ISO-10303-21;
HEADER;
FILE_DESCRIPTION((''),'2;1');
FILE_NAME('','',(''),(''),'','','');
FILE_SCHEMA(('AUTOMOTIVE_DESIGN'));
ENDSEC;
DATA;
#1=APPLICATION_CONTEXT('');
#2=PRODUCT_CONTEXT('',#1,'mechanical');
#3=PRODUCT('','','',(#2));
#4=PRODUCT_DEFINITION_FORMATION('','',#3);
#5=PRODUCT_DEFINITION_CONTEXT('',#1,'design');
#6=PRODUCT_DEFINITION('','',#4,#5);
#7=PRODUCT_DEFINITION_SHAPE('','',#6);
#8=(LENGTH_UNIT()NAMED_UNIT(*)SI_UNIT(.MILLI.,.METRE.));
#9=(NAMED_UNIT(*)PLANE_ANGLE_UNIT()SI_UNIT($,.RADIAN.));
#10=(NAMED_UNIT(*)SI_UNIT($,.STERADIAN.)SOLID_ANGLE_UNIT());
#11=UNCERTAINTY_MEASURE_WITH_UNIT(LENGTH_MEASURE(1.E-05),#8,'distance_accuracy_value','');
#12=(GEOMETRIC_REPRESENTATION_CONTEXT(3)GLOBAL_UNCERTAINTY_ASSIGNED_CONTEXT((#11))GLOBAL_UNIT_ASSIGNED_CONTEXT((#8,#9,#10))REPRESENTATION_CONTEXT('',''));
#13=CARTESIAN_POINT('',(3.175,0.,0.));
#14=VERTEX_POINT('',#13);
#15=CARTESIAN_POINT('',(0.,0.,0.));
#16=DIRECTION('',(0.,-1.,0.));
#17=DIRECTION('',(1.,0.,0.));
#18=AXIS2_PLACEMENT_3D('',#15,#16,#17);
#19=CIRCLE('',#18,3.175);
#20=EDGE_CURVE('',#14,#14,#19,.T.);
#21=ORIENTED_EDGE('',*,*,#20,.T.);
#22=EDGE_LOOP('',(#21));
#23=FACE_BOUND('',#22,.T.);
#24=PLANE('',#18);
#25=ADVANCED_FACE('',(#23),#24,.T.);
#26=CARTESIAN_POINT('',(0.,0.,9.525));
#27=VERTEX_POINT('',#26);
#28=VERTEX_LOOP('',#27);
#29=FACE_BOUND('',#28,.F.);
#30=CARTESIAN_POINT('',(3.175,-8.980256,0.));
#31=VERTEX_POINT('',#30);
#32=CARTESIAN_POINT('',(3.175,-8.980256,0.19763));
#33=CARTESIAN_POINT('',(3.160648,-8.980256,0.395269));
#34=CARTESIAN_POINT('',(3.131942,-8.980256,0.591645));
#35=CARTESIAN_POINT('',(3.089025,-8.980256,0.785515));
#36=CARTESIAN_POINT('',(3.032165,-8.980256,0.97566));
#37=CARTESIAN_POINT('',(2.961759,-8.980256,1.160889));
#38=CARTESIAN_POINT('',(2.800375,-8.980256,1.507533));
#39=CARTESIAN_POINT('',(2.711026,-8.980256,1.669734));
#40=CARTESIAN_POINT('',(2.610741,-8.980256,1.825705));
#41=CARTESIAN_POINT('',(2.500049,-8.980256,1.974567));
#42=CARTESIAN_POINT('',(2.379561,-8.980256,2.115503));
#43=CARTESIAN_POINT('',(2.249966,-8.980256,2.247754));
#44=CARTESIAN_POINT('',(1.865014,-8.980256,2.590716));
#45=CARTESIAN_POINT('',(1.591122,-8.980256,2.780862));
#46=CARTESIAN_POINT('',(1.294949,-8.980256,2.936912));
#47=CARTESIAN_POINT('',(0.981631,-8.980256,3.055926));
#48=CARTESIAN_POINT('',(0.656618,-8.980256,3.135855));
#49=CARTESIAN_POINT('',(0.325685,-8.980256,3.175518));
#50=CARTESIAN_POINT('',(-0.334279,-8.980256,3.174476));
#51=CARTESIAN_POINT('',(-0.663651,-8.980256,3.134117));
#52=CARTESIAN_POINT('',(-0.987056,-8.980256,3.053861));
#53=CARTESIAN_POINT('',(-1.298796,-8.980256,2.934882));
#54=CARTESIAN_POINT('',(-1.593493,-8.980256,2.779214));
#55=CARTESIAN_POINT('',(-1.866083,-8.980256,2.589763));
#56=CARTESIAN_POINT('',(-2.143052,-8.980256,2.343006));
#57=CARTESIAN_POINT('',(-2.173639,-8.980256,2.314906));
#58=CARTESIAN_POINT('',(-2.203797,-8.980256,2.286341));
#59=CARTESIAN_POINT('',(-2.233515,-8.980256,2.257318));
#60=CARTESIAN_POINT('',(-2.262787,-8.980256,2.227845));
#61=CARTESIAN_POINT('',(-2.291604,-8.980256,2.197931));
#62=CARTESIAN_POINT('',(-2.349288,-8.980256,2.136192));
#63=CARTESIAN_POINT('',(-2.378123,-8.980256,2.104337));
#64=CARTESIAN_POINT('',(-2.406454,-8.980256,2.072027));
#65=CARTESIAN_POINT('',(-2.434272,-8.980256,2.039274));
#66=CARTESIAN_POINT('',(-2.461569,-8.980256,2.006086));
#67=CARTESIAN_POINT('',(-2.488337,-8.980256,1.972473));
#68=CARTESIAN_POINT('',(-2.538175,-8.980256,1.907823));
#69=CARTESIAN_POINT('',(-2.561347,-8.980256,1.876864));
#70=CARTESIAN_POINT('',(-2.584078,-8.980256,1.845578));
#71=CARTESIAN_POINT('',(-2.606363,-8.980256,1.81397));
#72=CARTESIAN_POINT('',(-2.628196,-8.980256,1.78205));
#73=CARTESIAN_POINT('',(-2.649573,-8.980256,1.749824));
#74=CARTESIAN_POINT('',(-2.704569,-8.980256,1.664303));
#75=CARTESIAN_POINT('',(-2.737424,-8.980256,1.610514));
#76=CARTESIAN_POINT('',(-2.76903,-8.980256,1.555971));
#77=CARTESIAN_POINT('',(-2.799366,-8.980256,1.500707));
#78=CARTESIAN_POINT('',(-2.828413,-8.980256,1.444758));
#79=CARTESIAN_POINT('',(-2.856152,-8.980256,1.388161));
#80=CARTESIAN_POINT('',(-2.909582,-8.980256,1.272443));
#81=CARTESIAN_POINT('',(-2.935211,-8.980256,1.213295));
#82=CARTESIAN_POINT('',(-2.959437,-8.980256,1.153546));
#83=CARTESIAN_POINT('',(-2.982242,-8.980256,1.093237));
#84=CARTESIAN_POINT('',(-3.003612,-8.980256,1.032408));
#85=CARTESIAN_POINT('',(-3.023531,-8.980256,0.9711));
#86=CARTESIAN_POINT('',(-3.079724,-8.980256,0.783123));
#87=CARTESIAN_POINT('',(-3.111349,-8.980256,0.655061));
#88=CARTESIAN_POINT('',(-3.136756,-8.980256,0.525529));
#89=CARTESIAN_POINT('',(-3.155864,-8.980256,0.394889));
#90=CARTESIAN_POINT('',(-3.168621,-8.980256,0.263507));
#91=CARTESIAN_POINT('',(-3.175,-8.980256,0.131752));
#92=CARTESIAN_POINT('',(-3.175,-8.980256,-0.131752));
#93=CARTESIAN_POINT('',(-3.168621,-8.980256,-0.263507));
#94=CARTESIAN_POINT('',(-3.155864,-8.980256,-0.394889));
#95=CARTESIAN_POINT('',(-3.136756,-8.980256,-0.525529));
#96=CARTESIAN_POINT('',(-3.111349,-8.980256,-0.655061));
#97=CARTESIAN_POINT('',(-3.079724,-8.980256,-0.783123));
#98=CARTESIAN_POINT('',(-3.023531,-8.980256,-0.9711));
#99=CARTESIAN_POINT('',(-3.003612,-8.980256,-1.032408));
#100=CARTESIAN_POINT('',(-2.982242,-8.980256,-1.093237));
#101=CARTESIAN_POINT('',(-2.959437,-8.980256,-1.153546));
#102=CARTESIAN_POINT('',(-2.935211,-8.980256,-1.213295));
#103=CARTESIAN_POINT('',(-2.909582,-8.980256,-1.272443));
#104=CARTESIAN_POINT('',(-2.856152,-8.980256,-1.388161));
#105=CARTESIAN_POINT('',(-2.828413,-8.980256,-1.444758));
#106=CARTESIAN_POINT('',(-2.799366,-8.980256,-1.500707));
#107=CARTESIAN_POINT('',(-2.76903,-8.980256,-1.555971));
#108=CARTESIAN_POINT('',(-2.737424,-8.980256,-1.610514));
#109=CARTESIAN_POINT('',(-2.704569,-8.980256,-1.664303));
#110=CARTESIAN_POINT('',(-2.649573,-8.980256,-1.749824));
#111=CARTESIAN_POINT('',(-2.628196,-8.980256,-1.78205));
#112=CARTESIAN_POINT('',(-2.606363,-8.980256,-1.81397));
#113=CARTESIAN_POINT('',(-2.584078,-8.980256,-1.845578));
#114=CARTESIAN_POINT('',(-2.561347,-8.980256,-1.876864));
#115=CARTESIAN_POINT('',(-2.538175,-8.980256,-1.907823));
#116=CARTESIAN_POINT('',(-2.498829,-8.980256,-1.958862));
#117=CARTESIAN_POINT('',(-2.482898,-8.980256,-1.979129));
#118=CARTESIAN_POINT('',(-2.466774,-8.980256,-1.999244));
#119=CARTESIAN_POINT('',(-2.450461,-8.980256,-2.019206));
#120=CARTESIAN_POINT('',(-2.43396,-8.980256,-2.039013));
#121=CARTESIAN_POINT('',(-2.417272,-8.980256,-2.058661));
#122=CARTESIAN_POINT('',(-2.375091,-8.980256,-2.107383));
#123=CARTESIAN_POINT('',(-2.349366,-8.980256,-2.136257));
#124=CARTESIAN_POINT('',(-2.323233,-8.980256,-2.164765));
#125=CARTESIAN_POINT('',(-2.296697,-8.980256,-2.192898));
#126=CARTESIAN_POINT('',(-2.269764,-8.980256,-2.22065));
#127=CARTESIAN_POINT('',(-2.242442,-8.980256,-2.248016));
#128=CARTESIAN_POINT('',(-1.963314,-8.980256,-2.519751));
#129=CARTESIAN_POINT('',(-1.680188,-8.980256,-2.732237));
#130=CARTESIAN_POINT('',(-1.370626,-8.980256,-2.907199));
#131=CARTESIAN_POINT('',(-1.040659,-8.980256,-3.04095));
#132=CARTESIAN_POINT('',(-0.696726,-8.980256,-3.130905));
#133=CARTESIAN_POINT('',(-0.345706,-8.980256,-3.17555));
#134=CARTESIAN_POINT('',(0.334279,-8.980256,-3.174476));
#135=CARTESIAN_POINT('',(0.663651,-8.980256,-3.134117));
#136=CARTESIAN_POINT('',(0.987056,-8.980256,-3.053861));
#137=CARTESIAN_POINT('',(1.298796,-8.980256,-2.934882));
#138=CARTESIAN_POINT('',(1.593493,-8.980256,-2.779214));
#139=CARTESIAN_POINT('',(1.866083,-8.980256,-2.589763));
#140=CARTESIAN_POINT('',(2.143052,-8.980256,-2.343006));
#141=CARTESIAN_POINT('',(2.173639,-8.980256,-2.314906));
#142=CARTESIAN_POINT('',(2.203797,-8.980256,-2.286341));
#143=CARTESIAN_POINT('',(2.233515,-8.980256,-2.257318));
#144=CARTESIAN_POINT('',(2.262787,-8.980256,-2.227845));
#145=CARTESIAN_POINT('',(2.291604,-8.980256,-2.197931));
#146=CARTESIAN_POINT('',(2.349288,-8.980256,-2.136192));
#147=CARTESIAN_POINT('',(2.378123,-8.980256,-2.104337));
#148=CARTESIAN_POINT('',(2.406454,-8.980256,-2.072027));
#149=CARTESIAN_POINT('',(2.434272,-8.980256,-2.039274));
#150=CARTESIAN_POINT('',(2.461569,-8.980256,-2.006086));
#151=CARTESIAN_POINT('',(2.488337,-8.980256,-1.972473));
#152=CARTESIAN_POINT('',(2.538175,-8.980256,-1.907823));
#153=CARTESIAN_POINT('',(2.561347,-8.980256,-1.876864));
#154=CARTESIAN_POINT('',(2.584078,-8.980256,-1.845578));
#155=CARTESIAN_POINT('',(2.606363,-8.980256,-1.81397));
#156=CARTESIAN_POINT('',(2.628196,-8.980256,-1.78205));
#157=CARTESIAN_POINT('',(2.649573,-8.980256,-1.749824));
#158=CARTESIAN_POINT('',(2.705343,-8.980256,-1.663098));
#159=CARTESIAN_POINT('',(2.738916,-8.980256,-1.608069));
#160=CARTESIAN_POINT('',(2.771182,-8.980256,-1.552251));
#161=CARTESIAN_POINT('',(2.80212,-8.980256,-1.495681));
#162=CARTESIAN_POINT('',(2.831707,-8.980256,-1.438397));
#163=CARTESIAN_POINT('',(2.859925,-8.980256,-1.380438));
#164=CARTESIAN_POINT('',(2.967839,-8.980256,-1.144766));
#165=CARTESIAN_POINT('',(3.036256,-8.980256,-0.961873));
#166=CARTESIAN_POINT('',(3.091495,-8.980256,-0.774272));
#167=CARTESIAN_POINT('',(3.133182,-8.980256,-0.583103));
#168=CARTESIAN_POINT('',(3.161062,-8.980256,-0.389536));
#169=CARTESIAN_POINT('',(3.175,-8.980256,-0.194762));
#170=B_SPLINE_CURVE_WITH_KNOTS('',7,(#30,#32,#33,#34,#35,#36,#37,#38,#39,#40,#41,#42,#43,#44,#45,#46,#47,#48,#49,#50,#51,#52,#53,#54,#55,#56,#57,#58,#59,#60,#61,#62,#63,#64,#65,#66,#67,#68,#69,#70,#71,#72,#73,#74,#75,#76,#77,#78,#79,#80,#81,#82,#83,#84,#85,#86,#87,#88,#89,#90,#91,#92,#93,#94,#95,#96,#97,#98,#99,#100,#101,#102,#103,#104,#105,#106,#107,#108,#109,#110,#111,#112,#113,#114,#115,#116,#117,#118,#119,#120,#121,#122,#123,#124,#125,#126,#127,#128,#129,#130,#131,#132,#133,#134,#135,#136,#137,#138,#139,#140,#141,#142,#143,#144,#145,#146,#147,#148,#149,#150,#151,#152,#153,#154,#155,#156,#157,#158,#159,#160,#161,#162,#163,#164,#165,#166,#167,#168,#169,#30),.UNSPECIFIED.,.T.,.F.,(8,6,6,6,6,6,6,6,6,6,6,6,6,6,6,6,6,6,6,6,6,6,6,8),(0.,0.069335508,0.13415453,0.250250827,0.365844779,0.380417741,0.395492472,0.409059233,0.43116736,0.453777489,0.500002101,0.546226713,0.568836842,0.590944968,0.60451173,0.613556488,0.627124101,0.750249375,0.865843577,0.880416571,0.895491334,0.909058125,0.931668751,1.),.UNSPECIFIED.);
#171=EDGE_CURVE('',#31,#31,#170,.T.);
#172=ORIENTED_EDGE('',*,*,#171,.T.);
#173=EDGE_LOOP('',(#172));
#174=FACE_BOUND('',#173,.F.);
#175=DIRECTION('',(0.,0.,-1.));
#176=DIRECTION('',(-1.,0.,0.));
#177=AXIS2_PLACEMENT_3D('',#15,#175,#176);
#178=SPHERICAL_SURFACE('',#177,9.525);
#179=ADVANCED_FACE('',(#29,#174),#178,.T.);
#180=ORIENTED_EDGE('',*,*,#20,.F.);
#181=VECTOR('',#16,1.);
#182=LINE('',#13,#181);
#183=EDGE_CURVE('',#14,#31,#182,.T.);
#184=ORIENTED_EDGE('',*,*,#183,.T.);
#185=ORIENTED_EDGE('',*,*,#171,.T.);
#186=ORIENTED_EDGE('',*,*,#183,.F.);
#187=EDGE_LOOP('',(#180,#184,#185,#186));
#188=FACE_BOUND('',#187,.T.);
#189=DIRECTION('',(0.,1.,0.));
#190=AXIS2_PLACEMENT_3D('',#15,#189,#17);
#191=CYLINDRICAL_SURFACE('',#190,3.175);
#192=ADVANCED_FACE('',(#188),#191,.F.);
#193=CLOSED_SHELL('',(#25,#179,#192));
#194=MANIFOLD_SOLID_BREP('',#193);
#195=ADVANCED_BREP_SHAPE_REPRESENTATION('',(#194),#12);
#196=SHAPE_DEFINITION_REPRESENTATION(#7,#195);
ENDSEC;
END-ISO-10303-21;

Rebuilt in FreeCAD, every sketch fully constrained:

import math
import FreeCAD as App
import Part
import Sketcher

V = App.Vector
Q = App.Units.Quantity

doc = App.newDocument("Part")
params = doc.addObject("Spreadsheet::Sheet", "Params")
for row, (alias, value) in enumerate([
    ("sketch1_radius", "0.375 in"),
    ("revolution_angle", "360 deg"),
    ("sketch2_diameter", "0.25 in"),
    ("pad1_length", "1 in"),
], start=1):
    params.set(f"A{row}", alias)
    params.set(f"B{row}", "=" + value)
    params.setAlias(f"B{row}", alias)

body = doc.addObject("PartDesign::Body", "Body")

# Sketch on XZ plane
sketch1 = body.newObject("Sketcher::SketchObject", "Sketch")
sketch1.AttachmentSupport = (doc.getObject("XZ_Plane"), [""])
sketch1.MapMode = "FlatFace"
sketch1.addGeometry(Part.LineSegment(V(0, -9.525, 0), V(0, 9.525, 0)), False)
sketch1.addGeometry(Part.ArcOfCircle(Part.Circle(V(0, 0, 0), V(0, 0, 1), 9.525), math.radians(90), math.radians(270)), False)
sketch1.addConstraint(Sketcher.Constraint("Coincident", 0, 1, 1, 2))
sketch1.addConstraint(Sketcher.Constraint("Coincident", 1, 1, 0, 2))
sketch1.addConstraint(Sketcher.Constraint("Vertical", 0))
sketch1.addConstraint(Sketcher.Constraint("Coincident", 1, 3, -1, 1))
sketch1.addConstraint(Sketcher.Constraint("PointOnObject", 0, 1, -2))
sketch1.addConstraint(Sketcher.Constraint("Radius", 1, Q("0.375 in")))
sketch1.setExpression("Constraints[5]", "Params.sketch1_radius")
revolution = body.newObject("PartDesign::Revolution", "Revolution")
revolution.Profile = sketch1
revolution.ReferenceAxis = (sketch1, ["V_Axis"])
revolution.setExpression("Angle", "Params.revolution_angle")
body2 = doc.addObject("PartDesign::Body", "Body001")

# Sketch on XZ plane
sketch2 = body2.newObject("Sketcher::SketchObject", "Sketch001")
sketch2.AttachmentSupport = (doc.getObject("XZ_Plane001"), [""])
sketch2.MapMode = "FlatFace"
sketch2.addGeometry(Part.Circle(V(0, 0, 0), V(0, 0, 1), 3.175), False)
sketch2.addConstraint(Sketcher.Constraint("Coincident", 0, 3, -1, 1))
sketch2.addConstraint(Sketcher.Constraint("Diameter", 0, Q("0.25 in")))
sketch2.setExpression("Constraints[1]", "Params.sketch2_diameter")
pad1 = body2.newObject("PartDesign::Pad", "Pad")
pad1.Profile = sketch2
pad1.setExpression("Length", "Params.pad1_length")
doc.recompute()

boolean = body.newObject("PartDesign::Boolean", "Boolean")
boolean.Type = "Cut"
boolean.addObjects([body2])

doc.recompute()
